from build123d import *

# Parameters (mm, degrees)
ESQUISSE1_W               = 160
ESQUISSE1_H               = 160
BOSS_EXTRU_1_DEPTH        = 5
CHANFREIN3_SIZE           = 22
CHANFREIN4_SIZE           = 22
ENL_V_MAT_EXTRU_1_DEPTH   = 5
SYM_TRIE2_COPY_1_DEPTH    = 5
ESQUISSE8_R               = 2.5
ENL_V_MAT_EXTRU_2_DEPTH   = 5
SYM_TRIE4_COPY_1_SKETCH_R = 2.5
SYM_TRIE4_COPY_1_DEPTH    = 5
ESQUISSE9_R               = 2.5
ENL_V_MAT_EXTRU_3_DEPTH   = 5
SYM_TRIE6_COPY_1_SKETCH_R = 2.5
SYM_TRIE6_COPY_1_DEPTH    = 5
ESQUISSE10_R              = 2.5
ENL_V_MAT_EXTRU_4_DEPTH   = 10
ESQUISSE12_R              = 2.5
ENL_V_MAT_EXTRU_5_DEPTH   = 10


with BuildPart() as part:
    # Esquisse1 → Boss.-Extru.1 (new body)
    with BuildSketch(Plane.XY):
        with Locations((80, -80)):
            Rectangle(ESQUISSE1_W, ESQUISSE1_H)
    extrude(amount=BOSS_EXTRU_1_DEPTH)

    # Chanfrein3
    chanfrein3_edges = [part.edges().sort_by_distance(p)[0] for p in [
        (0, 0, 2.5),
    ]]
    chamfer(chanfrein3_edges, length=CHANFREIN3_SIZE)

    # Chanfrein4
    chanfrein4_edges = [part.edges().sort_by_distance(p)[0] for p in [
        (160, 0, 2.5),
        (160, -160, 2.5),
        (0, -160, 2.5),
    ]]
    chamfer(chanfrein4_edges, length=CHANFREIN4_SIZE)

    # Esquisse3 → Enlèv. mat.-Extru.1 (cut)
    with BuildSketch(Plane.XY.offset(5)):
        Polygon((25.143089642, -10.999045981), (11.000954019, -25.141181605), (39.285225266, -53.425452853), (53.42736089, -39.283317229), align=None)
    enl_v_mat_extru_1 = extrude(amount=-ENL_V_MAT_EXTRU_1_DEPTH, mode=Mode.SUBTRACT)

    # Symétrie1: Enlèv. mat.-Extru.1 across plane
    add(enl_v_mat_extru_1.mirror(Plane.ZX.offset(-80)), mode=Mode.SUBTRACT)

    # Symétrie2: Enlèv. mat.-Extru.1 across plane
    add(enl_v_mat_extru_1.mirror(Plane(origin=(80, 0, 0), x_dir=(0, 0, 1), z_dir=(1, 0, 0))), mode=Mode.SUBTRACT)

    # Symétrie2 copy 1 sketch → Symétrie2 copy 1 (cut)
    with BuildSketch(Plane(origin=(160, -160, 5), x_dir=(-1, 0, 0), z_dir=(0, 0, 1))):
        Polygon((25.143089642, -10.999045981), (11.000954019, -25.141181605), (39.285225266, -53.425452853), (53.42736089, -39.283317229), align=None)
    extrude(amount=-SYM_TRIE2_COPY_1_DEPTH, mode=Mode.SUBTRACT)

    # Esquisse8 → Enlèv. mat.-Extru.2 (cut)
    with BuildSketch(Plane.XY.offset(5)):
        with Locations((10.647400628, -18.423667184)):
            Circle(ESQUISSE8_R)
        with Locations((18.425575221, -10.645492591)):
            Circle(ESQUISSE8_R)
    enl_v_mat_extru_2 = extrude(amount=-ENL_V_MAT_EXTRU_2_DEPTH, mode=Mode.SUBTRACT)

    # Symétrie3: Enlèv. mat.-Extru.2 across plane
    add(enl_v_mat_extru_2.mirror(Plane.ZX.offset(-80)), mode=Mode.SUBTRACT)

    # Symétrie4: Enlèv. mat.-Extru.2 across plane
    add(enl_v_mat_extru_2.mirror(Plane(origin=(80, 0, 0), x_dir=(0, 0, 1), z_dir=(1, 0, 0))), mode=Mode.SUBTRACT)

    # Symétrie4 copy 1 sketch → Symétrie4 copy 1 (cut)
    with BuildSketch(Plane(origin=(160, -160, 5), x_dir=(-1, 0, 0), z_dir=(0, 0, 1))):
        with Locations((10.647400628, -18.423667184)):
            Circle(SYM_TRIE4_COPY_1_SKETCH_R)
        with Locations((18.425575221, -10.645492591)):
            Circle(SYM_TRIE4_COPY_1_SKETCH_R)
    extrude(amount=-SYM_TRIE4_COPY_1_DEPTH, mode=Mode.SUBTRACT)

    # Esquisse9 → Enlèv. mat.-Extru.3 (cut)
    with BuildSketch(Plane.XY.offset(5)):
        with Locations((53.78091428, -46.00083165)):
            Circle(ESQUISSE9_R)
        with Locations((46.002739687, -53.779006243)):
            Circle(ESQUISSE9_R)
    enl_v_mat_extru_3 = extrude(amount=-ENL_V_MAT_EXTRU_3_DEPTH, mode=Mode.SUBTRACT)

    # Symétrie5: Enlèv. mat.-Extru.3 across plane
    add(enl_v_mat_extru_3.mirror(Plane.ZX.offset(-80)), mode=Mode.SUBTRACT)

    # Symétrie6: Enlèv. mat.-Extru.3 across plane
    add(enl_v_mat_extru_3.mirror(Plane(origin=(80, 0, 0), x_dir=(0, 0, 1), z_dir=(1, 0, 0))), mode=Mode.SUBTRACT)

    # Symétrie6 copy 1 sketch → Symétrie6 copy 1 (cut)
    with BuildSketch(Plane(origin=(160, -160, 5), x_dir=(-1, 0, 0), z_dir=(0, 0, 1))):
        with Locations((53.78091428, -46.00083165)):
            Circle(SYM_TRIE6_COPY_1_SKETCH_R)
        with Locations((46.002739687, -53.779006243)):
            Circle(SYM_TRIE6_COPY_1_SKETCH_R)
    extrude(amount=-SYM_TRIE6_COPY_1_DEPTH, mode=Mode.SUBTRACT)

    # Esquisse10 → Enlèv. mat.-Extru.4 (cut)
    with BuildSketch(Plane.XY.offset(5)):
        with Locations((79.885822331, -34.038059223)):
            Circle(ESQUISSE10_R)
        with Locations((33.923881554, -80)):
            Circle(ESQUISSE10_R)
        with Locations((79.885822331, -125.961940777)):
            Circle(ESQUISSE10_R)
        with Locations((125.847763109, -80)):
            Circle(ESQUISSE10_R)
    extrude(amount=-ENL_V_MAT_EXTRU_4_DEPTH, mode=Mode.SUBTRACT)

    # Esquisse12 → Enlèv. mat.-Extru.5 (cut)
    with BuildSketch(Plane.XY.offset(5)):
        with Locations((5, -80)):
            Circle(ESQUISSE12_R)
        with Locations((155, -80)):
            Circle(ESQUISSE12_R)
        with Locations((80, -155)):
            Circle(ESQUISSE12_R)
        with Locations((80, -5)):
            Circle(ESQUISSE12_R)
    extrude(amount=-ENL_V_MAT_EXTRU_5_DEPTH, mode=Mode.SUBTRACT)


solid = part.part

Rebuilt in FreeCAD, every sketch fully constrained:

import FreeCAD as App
import Part
import Sketcher
Q = App.Units.Quantity


def edges_at(feature, points):
    """Names of the edges that pass closest to the given points."""
    edges = feature.Shape.Edges
    near = lambda p: min(range(len(edges)), key=lambda i: edges[i].distToShape(Part.Vertex(*p))[0])
    return sorted({f"Edge{near(p) + 1}" for p in points})

doc = App.newDocument("Part")
body = doc.addObject("PartDesign::Body", "Body")

# Sketch on XY plane
sketch1 = doc.addObject("Sketcher::SketchObject", "Sketch")
body.addObject(sketch1)
sketch1.AttachmentSupport = (doc.XY_Plane, [""])
sketch1.MapMode = "FlatFace"
sketch1.addGeometry([
    Part.LineSegment(App.Vector(0, 0, 0), App.Vector(0, -160, 0)),
    Part.LineSegment(App.Vector(0, -160, 0), App.Vector(160, -160, 0)),
    Part.LineSegment(App.Vector(160, -160, 0), App.Vector(160, 0, 0)),
    Part.LineSegment(App.Vector(160, 0, 0), App.Vector(0, 0, 0)),
], False)
sketch1.addConstraint([
    Sketcher.Constraint("Coincident", 0, 2, 1, 1),
    Sketcher.Constraint("Coincident", 1, 2, 2, 1),
    Sketcher.Constraint("Coincident", 2, 2, 3, 1),
    Sketcher.Constraint("Coincident", 3, 2, 0, 1),
    Sketcher.Constraint("Vertical", 0),
    Sketcher.Constraint("Horizontal", 1),
    Sketcher.Constraint("Vertical", 2),
    Sketcher.Constraint("Horizontal", 3),
    Sketcher.Constraint("Coincident", 3, 2, -1, 1),
    Sketcher.Constraint("Equal", 3, 0),
    Sketcher.Constraint("DistanceX", 1, 1, 1, 2, Q("160 mm")),
])
pad1 = doc.addObject("PartDesign::Pad", "Pad")
body.addObject(pad1)
pad1.Profile = sketch1
pad1.Length = 5
doc.recompute()

chamfer = doc.addObject("PartDesign::Chamfer", "Chamfer")
body.addObject(chamfer)
chamfer.Base = (pad1, edges_at(pad1, [(0, 0, 2.5)]))
chamfer.Size = 22
doc.recompute()

chamfer2 = doc.addObject("PartDesign::Chamfer", "Chamfer001")
body.addObject(chamfer2)
chamfer2.Base = (chamfer, edges_at(chamfer, [(160, 0, 2.5), (160, -160, 2.5), (0, -160, 2.5)]))
chamfer2.Size = 22

# Sketch on XY plane
sketch2 = doc.addObject("Sketcher::SketchObject", "Sketch001")
body.addObject(sketch2)
sketch2.AttachmentSupport = (doc.XY_Plane, [""])
sketch2.MapMode = "FlatFace"
sketch2.AttachmentOffset = App.Placement(App.Vector(0, 0, 5), App.Rotation())
sketch2.addGeometry([
    Part.LineSegment(App.Vector(25, -11, 0), App.Vector(11, -25, 0)),
    Part.LineSegment(App.Vector(11, -25, 0), App.Vector(39, -53, 0)),
    Part.LineSegment(App.Vector(39, -53, 0), App.Vector(53, -39, 0)),
    Part.LineSegment(App.Vector(53, -39, 0), App.Vector(25, -11, 0)),
], False)
sketch2.addConstraint([
    Sketcher.Constraint("Coincident", 0, 2, 1, 1),
    Sketcher.Constraint("Coincident", 1, 2, 2, 1),
    Sketcher.Constraint("Coincident", 2, 2, 3, 1),
    Sketcher.Constraint("Coincident", 3, 2, 0, 1),
    Sketcher.Constraint("Perpendicular", 0, 1),
    Sketcher.Constraint("Perpendicular", 1, 2),
    Sketcher.Constraint("Perpendicular", 2, 3),
    Sketcher.Constraint("Angle", 0, Q("-135 deg")),
    Sketcher.Constraint("Distance", 0, Q("20 mm")),
    Sketcher.Constraint("Distance", 1, Q("40 mm")),
    Sketcher.Constraint("DistanceY", 0, 2, -1, 1, Q("25.141182 mm")),
    Sketcher.Constraint("DistanceX", -1, 1, 2, 2, Q("53.427361 mm")),
])
pocket1 = doc.addObject("PartDesign::Pocket", "Pocket")
body.addObject(pocket1)
pocket1.Profile = sketch2
pocket1.Length = 5
doc.recompute()

datumplane = doc.addObject("PartDesign::Plane", "DatumPlane")
body.addObject(datumplane)
datumplane.AttachmentSupport = (doc.XZ_Plane, [""])
datumplane.MapMode = "FlatFace"
datumplane.AttachmentOffset = App.Placement(App.Vector(0, 0, 80), App.Rotation())
mirrored = doc.addObject("PartDesign::Mirrored", "Mirrored")
body.addObject(mirrored)
mirrored.Originals = [pocket1]
mirrored.MirrorPlane = (datumplane, [""])
body.Tip = mirrored
doc.recompute()

datumplane2 = doc.addObject("PartDesign::Plane", "DatumPlane001")
body.addObject(datumplane2)
datumplane2.AttachmentSupport = (doc.YZ_Plane, [""])
datumplane2.MapMode = "FlatFace"
datumplane2.AttachmentOffset = App.Placement(App.Vector(0, 0, 80), App.Rotation())
mirrored2 = doc.addObject("PartDesign::Mirrored", "Mirrored001")
body.addObject(mirrored2)
mirrored2.Originals = [pocket1]
mirrored2.MirrorPlane = (datumplane2, [""])
body.Tip = mirrored2

# Sketch on XY plane
sketch3 = doc.addObject("Sketcher::SketchObject", "Sketch002")
body.addObject(sketch3)
sketch3.AttachmentSupport = (doc.XY_Plane, [""])
sketch3.MapMode = "FlatFace"
sketch3.AttachmentOffset = App.Placement(App.Vector(0, 0, 5), App.Rotation())
sketch3.addGeometry([
    Part.LineSegment(App.Vector(135, -149, 0), App.Vector(149, -135, 0)),
    Part.LineSegment(App.Vector(149, -135, 0), App.Vector(121, -107, 0)),
    Part.LineSegment(App.Vector(121, -107, 0), App.Vector(107, -121, 0)),
    Part.LineSegment(App.Vector(107, -121, 0), App.Vector(135, -149, 0)),
], False)
sketch3.addConstraint([
    Sketcher.Constraint("Coincident", 0, 2, 1, 1),
    Sketcher.Constraint("Coincident", 1, 2, 2, 1),
    Sketcher.Constraint("Coincident", 2, 2, 3, 1),
    Sketcher.Constraint("Coincident", 3, 2, 0, 1),
    Sketcher.Constraint("Perpendicular", 0, 1),
    Sketcher.Constraint("Perpendicular", 1, 2),
    Sketcher.Constraint("Perpendicular", 2, 3),
    Sketcher.Constraint("Angle", 0, Q("45 deg")),
    Sketcher.Constraint("Distance", 0, Q("20 mm")),
    Sketcher.Constraint("Distance", 1, Q("40 mm")),
    Sketcher.Constraint("DistanceY", 0, 2, -1, 1, Q("134.858818 mm")),
    Sketcher.Constraint("DistanceX", -1, 1, 2, 2, Q("106.572639 mm")),
])
pocket2 = doc.addObject("PartDesign::Pocket", "Pocket001")
body.addObject(pocket2)
pocket2.Profile = sketch3
pocket2.Length = 5

# Sketch on XY plane
sketch4 = doc.addObject("Sketcher::SketchObject", "Sketch003")
body.addObject(sketch4)
sketch4.AttachmentSupport = (doc.XY_Plane, [""])
sketch4.MapMode = "FlatFace"
sketch4.AttachmentOffset = App.Placement(App.Vector(0, 0, 5), App.Rotation())
sketch4.addGeometry([
    Part.Circle(App.Vector(10.6, -18.4, 0), App.Vector(0, 0, 1), 2.5),
    Part.Circle(App.Vector(18.4, -10.6, 0), App.Vector(0, 0, 1), 2.5),
], False)
sketch4.addConstraint([
    Sketcher.Constraint("Equal", 0, 1),
    Sketcher.Constraint("Diameter", 0, Q("5 mm")),
    Sketcher.Constraint("DistanceX", -1, 1, 0, 3, Q("10.647401 mm")),
    Sketcher.Constraint("DistanceY", 0, 3, -1, 1, Q("18.423667 mm")),
    Sketcher.Constraint("DistanceX", -1, 1, 1, 3, Q("18.425575 mm")),
    Sketcher.Constraint("DistanceY", 1, 3, -1, 1, Q("10.645493 mm")),
])
pocket3 = doc.addObject("PartDesign::Pocket", "Pocket002")
body.addObject(pocket3)
pocket3.Profile = sketch4
pocket3.Length = 5
doc.recompute()

datumplane3 = doc.addObject("PartDesign::Plane", "DatumPlane002")
body.addObject(datumplane3)
datumplane3.AttachmentSupport = (doc.XZ_Plane, [""])
datumplane3.MapMode = "FlatFace"
datumplane3.AttachmentOffset = App.Placement(App.Vector(0, 0, 80), App.Rotation())
mirrored3 = doc.addObject("PartDesign::Mirrored", "Mirrored002")
body.addObject(mirrored3)
mirrored3.Originals = [pocket3]
mirrored3.MirrorPlane = (datumplane3, [""])
body.Tip = mirrored3
doc.recompute()

datumplane4 = doc.addObject("PartDesign::Plane", "DatumPlane003")
body.addObject(datumplane4)
datumplane4.AttachmentSupport = (doc.YZ_Plane, [""])
datumplane4.MapMode = "FlatFace"
datumplane4.AttachmentOffset = App.Placement(App.Vector(0, 0, 80), App.Rotation())
mirrored4 = doc.addObject("PartDesign::Mirrored", "Mirrored003")
body.addObject(mirrored4)
mirrored4.Originals = [pocket3]
mirrored4.MirrorPlane = (datumplane4, [""])
body.Tip = mirrored4

# Sketch on XY plane
sketch5 = doc.addObject("Sketcher::SketchObject", "Sketch004")
body.addObject(sketch5)
sketch5.AttachmentSupport = (doc.XY_Plane, [""])
sketch5.MapMode = "FlatFace"
sketch5.AttachmentOffset = App.Placement(App.Vector(0, 0, 5), App.Rotation())
sketch5.addGeometry([
    Part.Circle(App.Vector(149.4, -141.6, 0), App.Vector(0, 0, 1), 2.5),
    Part.Circle(App.Vector(141.6, -149.4, 0), App.Vector(0, 0, 1), 2.5),
], False)
sketch5.addConstraint([
    Sketcher.Constraint("Equal", 0, 1),
    Sketcher.Constraint("Diameter", 0, Q("5 mm")),
    Sketcher.Constraint("DistanceX", -1, 1, 0, 3, Q("149.352599 mm")),
    Sketcher.Constraint("DistanceY", 0, 3, -1, 1, Q("141.576333 mm")),
    Sketcher.Constraint("DistanceX", -1, 1, 1, 3, Q("141.574425 mm")),
    Sketcher.Constraint("DistanceY", 1, 3, -1, 1, Q("149.354507 mm")),
])
pocket4 = doc.addObject("PartDesign::Pocket", "Pocket003")
body.addObject(pocket4)
pocket4.Profile = sketch5
pocket4.Length = 5

# Sketch on XY plane
sketch6 = doc.addObject("Sketcher::SketchObject", "Sketch005")
body.addObject(sketch6)
sketch6.AttachmentSupport = (doc.XY_Plane, [""])
sketch6.MapMode = "FlatFace"
sketch6.AttachmentOffset = App.Placement(App.Vector(0, 0, 5), App.Rotation())
sketch6.addGeometry([
    Part.Circle(App.Vector(53.8, -46, 0), App.Vector(0, 0, 1), 2.5),
    Part.Circle(App.Vector(46, -53.8, 0), App.Vector(0, 0, 1), 2.5),
], False)
sketch6.addConstraint([
    Sketcher.Constraint("Equal", 0, 1),
    Sketcher.Constraint("Diameter", 0, Q("5 mm")),
    Sketcher.Constraint("DistanceY", 0, 3, -1, 1, Q("46.000832 mm")),
    Sketcher.Constraint("DistanceX", -1, 1, 1, 3, Q("46.00274 mm")),
    Sketcher.Constraint("DistanceX", -1, 1, 0, 3, Q("53.780914 mm")),
    Sketcher.Constraint("DistanceY", 1, 3, -1, 1, Q("53.779006 mm")),
])
pocket5 = doc.addObject("PartDesign::Pocket", "Pocket004")
body.addObject(pocket5)
pocket5.Profile = sketch6
pocket5.Length = 5
doc.recompute()

datumplane5 = doc.addObject("PartDesign::Plane", "DatumPlane004")
body.addObject(datumplane5)
datumplane5.AttachmentSupport = (doc.XZ_Plane, [""])
datumplane5.MapMode = "FlatFace"
datumplane5.AttachmentOffset = App.Placement(App.Vector(0, 0, 80), App.Rotation())
mirrored5 = doc.addObject("PartDesign::Mirrored", "Mirrored004")
body.addObject(mirrored5)
mirrored5.Originals = [pocket5]
mirrored5.MirrorPlane = (datumplane5, [""])
body.Tip = mirrored5
doc.recompute()

datumplane6 = doc.addObject("PartDesign::Plane", "DatumPlane005")
body.addObject(datumplane6)
datumplane6.AttachmentSupport = (doc.YZ_Plane, [""])
datumplane6.MapMode = "FlatFace"
datumplane6.AttachmentOffset = App.Placement(App.Vector(0, 0, 80), App.Rotation())
mirrored6 = doc.addObject("PartDesign::Mirrored", "Mirrored005")
body.addObject(mirrored6)
mirrored6.Originals = [pocket5]
mirrored6.MirrorPlane = (datumplane6, [""])
body.Tip = mirrored6

# Sketch on XY plane
sketch7 = doc.addObject("Sketcher::SketchObject", "Sketch006")
body.addObject(sketch7)
sketch7.AttachmentSupport = (doc.XY_Plane, [""])
sketch7.MapMode = "FlatFace"
sketch7.AttachmentOffset = App.Placement(App.Vector(0, 0, 5), App.Rotation())
sketch7.addGeometry([
    Part.Circle(App.Vector(106.2, -114, 0), App.Vector(0, 0, 1), 2.5),
    Part.Circle(App.Vector(114, -106.2, 0), App.Vector(0, 0, 1), 2.5),
], False)
sketch7.addConstraint([
    Sketcher.Constraint("Equal", 0, 1),
    Sketcher.Constraint("Diameter", 0, Q("5 mm")),
    Sketcher.Constraint("DistanceY", 0, 3, -1, 1, Q("113.999168 mm")),
    Sketcher.Constraint("DistanceX", -1, 1, 1, 3, Q("113.99726 mm")),
    Sketcher.Constraint("DistanceX", -1, 1, 0, 3, Q("106.219086 mm")),
    Sketcher.Constraint("DistanceY", 1, 3, -1, 1, Q("106.220994 mm")),
])
pocket6 = doc.addObject("PartDesign::Pocket", "Pocket005")
body.addObject(pocket6)
pocket6.Profile = sketch7
pocket6.Length = 5

# Sketch on XY plane
sketch8 = doc.addObject("Sketcher::SketchObject", "Sketch007")
body.addObject(sketch8)
sketch8.AttachmentSupport = (doc.XY_Plane, [""])
sketch8.MapMode = "FlatFace"
sketch8.AttachmentOffset = App.Placement(App.Vector(0, 0, 5), App.Rotation())
sketch8.addGeometry([
    Part.Circle(App.Vector(79.9, -34, 0), App.Vector(0, 0, 1), 2.5),
    Part.Circle(App.Vector(33.9, -80, 0), App.Vector(0, 0, 1), 2.5),
    Part.Circle(App.Vector(79.9, -126, 0), App.Vector(0, 0, 1), 2.5),
    Part.Circle(App.Vector(125.8, -80, 0), App.Vector(0, 0, 1), 2.5),
], False)
sketch8.addConstraint([
    Sketcher.Constraint("Equal", 0, 1),
    Sketcher.Constraint("Equal", 1, 2),
    Sketcher.Constraint("Equal", 2, 3),
    Sketcher.Constraint("Horizontal", 1, 3, 3, 3),
    Sketcher.Constraint("Vertical", 0, 3, 2, 3),
    Sketcher.Constraint("Diameter", 0, Q("5 mm")),
    Sketcher.Constraint("DistanceY", 1, 3, -1, 1, Q("80 mm")),
    Sketcher.Constraint("DistanceY", 0, 3, -1, 1, Q("34.038059 mm")),
    Sketcher.Constraint("DistanceX", -1, 1, 1, 3, Q("33.923882 mm")),
    Sketcher.Constraint("DistanceY", 2, 3, -1, 1, Q("125.961941 mm")),
    Sketcher.Constraint("DistanceX", 1, 3, 0, 3, Q("45.961941 mm")),
    Sketcher.Constraint("DistanceX", 0, 3, 3, 3, Q("45.961941 mm")),
])
pocket7 = doc.addObject("PartDesign::Pocket", "Pocket006")
body.addObject(pocket7)
pocket7.Profile = sketch8
pocket7.Length = 10

# Sketch on XY plane
sketch9 = doc.addObject("Sketcher::SketchObject", "Sketch008")
body.addObject(sketch9)
sketch9.AttachmentSupport = (doc.XY_Plane, [""])
sketch9.MapMode = "FlatFace"
sketch9.AttachmentOffset = App.Placement(App.Vector(0, 0, 5), App.Rotation())
sketch9.addGeometry([
    Part.Circle(App.Vector(5, -80, 0), App.Vector(0, 0, 1), 2.5),
    Part.Circle(App.Vector(155, -80, 0), App.Vector(0, 0, 1), 2.5),
    Part.Circle(App.Vector(80, -155, 0), App.Vector(0, 0, 1), 2.5),
    Part.Circle(App.Vector(80, -5, 0), App.Vector(0, 0, 1), 2.5),
], False)
sketch9.addConstraint([
    Sketcher.Constraint("Equal", 0, 1),
    Sketcher.Constraint("Equal", 1, 2),
    Sketcher.Constraint("Equal", 2, 3),
    Sketcher.Constraint("Horizontal", 0, 3, 1, 3),
    Sketcher.Constraint("Vertical", 2, 3, 3, 3),
    Sketcher.Constraint("Diameter", 0, Q("5 mm")),
    Sketcher.Constraint("DistanceX", -1, 1, 0, 3, Q("5 mm")),
    Sketcher.Constraint("DistanceY", 0, 3, -1, 1, Q("80 mm")),
    Sketcher.Constraint("DistanceX", -1, 1, 1, 3, Q("155 mm")),
    Sketcher.Constraint("DistanceX", -1, 1, 2, 3, Q("80 mm")),
    Sketcher.Constraint("DistanceY", 2, 3, -1, 1, Q("155 mm")),
    Sketcher.Constraint("DistanceY", 3, 3, -1, 1, Q("5 mm")),
])
pocket8 = doc.addObject("PartDesign::Pocket", "Pocket007")
body.addObject(pocket8)
pocket8.Profile = sketch9
pocket8.Length = 10

doc.recompute()
